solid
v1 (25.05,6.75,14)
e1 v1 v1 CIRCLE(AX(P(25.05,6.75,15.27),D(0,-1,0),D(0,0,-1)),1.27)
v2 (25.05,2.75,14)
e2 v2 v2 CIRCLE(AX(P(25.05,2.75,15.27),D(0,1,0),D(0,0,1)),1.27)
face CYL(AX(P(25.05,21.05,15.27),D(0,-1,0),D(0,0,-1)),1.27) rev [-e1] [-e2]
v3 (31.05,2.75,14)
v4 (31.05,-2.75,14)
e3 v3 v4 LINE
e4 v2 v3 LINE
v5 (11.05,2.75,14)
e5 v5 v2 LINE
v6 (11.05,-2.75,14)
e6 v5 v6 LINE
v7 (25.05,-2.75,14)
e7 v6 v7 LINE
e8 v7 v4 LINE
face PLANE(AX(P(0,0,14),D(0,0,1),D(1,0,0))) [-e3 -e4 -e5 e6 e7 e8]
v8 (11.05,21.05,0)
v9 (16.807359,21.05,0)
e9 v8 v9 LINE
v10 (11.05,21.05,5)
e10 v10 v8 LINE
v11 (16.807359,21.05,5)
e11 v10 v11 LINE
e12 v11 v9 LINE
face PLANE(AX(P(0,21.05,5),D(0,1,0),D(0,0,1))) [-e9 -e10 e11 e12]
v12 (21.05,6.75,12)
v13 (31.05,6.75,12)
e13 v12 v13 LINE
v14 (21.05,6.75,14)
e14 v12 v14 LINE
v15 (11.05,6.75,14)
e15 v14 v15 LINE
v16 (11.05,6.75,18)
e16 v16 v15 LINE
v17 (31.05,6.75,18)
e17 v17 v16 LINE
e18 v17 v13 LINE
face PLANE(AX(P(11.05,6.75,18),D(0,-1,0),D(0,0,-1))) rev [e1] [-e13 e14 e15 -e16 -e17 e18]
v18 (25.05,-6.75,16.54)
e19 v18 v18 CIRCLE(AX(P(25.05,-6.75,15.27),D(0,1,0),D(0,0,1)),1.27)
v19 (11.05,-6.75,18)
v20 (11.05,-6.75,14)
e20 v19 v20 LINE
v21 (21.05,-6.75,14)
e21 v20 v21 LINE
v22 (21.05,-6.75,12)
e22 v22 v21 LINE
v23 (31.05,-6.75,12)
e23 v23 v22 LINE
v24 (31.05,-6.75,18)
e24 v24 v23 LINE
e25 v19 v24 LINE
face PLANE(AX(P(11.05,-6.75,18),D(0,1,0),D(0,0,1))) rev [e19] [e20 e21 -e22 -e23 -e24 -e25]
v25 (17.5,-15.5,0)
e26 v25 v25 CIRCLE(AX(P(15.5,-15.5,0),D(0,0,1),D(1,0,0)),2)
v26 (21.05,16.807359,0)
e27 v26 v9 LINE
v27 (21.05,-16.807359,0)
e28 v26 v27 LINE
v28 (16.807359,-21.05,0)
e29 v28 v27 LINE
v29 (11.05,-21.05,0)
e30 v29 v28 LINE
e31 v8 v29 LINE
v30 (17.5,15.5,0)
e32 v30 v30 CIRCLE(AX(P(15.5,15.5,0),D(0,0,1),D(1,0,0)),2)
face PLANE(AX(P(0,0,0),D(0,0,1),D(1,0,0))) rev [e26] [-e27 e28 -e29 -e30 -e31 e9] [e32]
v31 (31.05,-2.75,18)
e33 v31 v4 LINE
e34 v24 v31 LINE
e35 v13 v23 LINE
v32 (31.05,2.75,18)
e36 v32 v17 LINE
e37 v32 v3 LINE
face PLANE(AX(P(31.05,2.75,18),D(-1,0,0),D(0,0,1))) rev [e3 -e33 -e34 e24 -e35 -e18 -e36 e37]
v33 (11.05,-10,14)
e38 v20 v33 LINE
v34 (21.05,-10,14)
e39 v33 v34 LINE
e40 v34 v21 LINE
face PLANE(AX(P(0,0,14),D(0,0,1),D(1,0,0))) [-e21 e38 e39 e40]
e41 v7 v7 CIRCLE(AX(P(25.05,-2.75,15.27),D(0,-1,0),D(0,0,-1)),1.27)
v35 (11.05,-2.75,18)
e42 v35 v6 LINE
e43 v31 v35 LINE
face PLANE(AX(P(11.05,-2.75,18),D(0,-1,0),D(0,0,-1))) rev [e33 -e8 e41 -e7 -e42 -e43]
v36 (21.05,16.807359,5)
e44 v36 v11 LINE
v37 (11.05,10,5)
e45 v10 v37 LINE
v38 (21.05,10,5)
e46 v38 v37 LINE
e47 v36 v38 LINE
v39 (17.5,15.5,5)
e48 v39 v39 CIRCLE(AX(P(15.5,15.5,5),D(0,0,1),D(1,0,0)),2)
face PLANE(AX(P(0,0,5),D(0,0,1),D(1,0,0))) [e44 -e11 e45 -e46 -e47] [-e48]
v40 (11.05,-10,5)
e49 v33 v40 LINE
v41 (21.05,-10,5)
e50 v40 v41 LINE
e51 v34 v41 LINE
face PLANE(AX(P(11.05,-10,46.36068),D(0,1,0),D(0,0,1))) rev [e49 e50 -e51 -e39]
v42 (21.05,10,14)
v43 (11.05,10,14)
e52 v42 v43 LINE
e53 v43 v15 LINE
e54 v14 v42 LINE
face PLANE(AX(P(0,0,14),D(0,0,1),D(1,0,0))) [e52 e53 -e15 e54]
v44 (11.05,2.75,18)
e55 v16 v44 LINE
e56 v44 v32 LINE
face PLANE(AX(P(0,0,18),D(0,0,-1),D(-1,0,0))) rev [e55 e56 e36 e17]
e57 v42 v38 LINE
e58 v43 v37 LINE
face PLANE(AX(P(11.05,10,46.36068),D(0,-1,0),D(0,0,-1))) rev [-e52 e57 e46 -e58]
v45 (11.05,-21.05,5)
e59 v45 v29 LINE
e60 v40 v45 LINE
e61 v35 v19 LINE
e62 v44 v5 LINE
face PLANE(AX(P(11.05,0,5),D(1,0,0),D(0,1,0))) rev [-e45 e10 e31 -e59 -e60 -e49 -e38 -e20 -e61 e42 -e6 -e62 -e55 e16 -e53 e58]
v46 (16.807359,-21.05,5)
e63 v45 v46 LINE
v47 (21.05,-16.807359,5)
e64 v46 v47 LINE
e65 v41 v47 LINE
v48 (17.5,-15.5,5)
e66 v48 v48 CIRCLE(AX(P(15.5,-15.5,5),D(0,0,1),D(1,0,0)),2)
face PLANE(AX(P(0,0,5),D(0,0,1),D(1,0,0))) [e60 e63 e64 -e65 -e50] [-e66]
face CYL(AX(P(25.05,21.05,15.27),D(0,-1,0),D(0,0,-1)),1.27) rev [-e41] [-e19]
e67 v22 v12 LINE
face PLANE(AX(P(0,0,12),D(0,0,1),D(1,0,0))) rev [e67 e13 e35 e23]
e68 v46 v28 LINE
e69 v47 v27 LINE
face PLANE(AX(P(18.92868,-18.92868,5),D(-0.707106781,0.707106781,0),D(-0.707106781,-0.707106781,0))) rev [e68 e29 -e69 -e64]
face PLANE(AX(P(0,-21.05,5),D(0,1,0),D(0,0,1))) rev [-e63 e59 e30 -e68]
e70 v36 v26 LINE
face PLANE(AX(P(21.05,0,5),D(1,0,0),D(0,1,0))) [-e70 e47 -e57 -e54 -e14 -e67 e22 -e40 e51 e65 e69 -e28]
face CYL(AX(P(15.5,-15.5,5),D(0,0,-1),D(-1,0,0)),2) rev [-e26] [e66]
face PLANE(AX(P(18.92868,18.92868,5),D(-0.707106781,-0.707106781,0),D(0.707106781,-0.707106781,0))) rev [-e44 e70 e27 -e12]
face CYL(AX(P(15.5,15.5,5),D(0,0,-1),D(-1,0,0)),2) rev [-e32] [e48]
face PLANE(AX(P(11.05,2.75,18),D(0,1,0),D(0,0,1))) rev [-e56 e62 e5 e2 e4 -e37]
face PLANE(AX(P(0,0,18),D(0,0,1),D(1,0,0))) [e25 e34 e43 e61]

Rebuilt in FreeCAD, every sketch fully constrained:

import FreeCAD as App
import Part
import Sketcher
from FreeCAD import Vector

doc = App.newDocument("Part")
body = doc.addObject("PartDesign::Body", "Body")

sketch1 = body.newObject("Sketcher::SketchObject", "Sketch")
sketch1.AttachmentSupport = (doc.getObject("XY_Plane"), [""])
sketch1.MapMode = "FlatFace"
sketch1.addGeometry(Part.LineSegment(Vector(16.8, 21.1, 0), Vector(11.1, 21.1, 0)), False)
sketch1.addGeometry(Part.LineSegment(Vector(11.1, 21.1, 0), Vector(11.1, -21.1, 0)), False)
sketch1.addGeometry(Part.LineSegment(Vector(11.1, -21.1, 0), Vector(16.8, -21.1, 0)), False)
sketch1.addGeometry(Part.LineSegment(Vector(16.8, -21.1, 0), Vector(21.1, -16.8, 0)), False)
sketch1.addGeometry(Part.LineSegment(Vector(21.1, -16.8, 0), Vector(21.1, 16.8, 0)), False)
sketch1.addGeometry(Part.LineSegment(Vector(21.1, 16.8, 0), Vector(16.8, 21.1, 0)), False)
sketch1.addGeometry(Part.Circle(Vector(15.5, -15.5, 0), Vector(0, 0, 1), 2), False)
sketch1.addGeometry(Part.Circle(Vector(15.5, 15.5, 0), Vector(0, 0, 1), 2), False)
sketch1.addConstraint(Sketcher.Constraint("Coincident", 0, 2, 1, 1))
sketch1.addConstraint(Sketcher.Constraint("Coincident", 1, 2, 2, 1))
sketch1.addConstraint(Sketcher.Constraint("Coincident", 2, 2, 3, 1))
sketch1.addConstraint(Sketcher.Constraint("Coincident", 3, 2, 4, 1))
sketch1.addConstraint(Sketcher.Constraint("Coincident", 4, 2, 5, 1))
sketch1.addConstraint(Sketcher.Constraint("Coincident", 5, 2, 0, 1))
sketch1.addConstraint(Sketcher.Constraint("Horizontal", 0))
sketch1.addConstraint(Sketcher.Constraint("Vertical", 1))
sketch1.addConstraint(Sketcher.Constraint("Horizontal", 2))
sketch1.addConstraint(Sketcher.Constraint("Vertical", 4))
sketch1.addConstraint(Sketcher.Constraint("Equal", 6, 7))
sketch1.addConstraint(Sketcher.Constraint("Symmetric", 6, 3, 7, 3, -1))
sketch1.addConstraint(Sketcher.Constraint("Symmetric", 2, 2, 5, 2, -1))
sketch1.addConstraint(Sketcher.Constraint("Perpendicular", 3, 5))
sketch1.addConstraint(Sketcher.Constraint("Equal", 3, 5))
sketch1.addConstraint(Sketcher.Constraint("Diameter", 6, 4.0))
sketch1.addConstraint(Sketcher.Constraint("Distance", 3, 6.0))
sketch1.addConstraint(Sketcher.Constraint("DistanceY", 1, 2, 1, 1, 42.1))
sketch1.addConstraint(Sketcher.Constraint("DistanceY", 6, 3, 7, 3, 31.0))
sketch1.addConstraint(Sketcher.Constraint("DistanceX", 1, 2, 3, 2, 10.0))
sketch1.addConstraint(Sketcher.Constraint("DistanceX", -1, 1, 6, 3, 15.5))
sketch1.addConstraint(Sketcher.Constraint("DistanceX", -1, 1, 0, 2, 11.05))
pad1 = body.newObject("PartDesign::Pad", "Pad")
pad1.Profile = sketch1
pad1.Length = 5

sketch2 = body.newObject("Sketcher::SketchObject", "Sketch001")
sketch2.AttachmentSupport = (doc.getObject("XY_Plane"), [""])
sketch2.MapMode = "FlatFace"
sketch2.AttachmentOffset = App.Placement(Vector(0, 0, 5), App.Rotation())
sketch2.addGeometry(Part.LineSegment(Vector(11, 10, 0), Vector(11, -10, 0)), False)
sketch2.addGeometry(Part.LineSegment(Vector(11, -10, 0), Vector(21, -10, 0)), False)
sketch2.addGeometry(Part.LineSegment(Vector(21, -10, 0), Vector(21, 10, 0)), False)
sketch2.addGeometry(Part.LineSegment(Vector(21, 10, 0), Vector(11, 10, 0)), False)
sketch2.addConstraint(Sketcher.Constraint("Coincident", 0, 2, 1, 1))
sketch2.addConstraint(Sketcher.Constraint("Coincident", 1, 2, 2, 1))
sketch2.addConstraint(Sketcher.Constraint("Coincident", 2, 2, 3, 1))
sketch2.addConstraint(Sketcher.Constraint("Coincident", 3, 2, 0, 1))
sketch2.addConstraint(Sketcher.Constraint("Vertical", 0))
sketch2.addConstraint(Sketcher.Constraint("Horizontal", 1))
sketch2.addConstraint(Sketcher.Constraint("Vertical", 2))
sketch2.addConstraint(Sketcher.Constraint("Horizontal", 3))
sketch2.addConstraint(Sketcher.Constraint("DistanceX", 1, 1, 1, 2, 10.0))
sketch2.addConstraint(Sketcher.Constraint("DistanceY", 0, 2, 0, 1, 20.0))
sketch2.addConstraint(Sketcher.Constraint("DistanceY", 0, 2, -1, 1, 10.0))
sketch2.addConstraint(Sketcher.Constraint("DistanceX", -1, 1, 0, 2, 11.05))
pad2 = body.newObject("PartDesign::Pad", "Pad001")
pad2.Profile = sketch2
pad2.Length = 9

sketch3 = body.newObject("Sketcher::SketchObject", "Sketch002")
sketch3.AttachmentSupport = (doc.getObject("XY_Plane"), [""])
sketch3.MapMode = "FlatFace"
sketch3.AttachmentOffset = App.Placement(Vector(0, 0, 14), App.Rotation())
sketch3.addGeometry(Part.LineSegment(Vector(11.1, 6.8, 0), Vector(11.1, 2.8, 0)), False)
sketch3.addGeometry(Part.LineSegment(Vector(11.1, 2.8, 0), Vector(31.1, 2.8, 0)), False)
sketch3.addGeometry(Part.LineSegment(Vector(31.1, 2.8, 0), Vector(31.1, 6.8, 0)), False)
sketch3.addGeometry(Part.LineSegment(Vector(31.1, 6.8, 0), Vector(11.1, 6.8, 0)), False)
sketch3.addGeometry(Part.LineSegment(Vector(11.1, -2.8, 0), Vector(11.1, -6.8, 0)), False)
sketch3.addGeometry(Part.LineSegment(Vector(11.1, -6.8, 0), Vector(31.1, -6.8, 0)), False)
sketch3.addGeometry(Part.LineSegment(Vector(31.1, -6.8, 0), Vector(31.1, -2.8, 0)), False)
sketch3.addGeometry(Part.LineSegment(Vector(31.1, -2.8, 0), Vector(11.1, -2.8, 0)), False)
sketch3.addConstraint(Sketcher.Constraint("Coincident", 0, 2, 1, 1))
sketch3.addConstraint(Sketcher.Constraint("Coincident", 1, 2, 2, 1))
sketch3.addConstraint(Sketcher.Constraint("Coincident", 2, 2, 3, 1))
sketch3.addConstraint(Sketcher.Constraint("Coincident", 3, 2, 0, 1))
sketch3.addConstraint(Sketcher.Constraint("Coincident", 4, 2, 5, 1))
sketch3.addConstraint(Sketcher.Constraint("Coincident", 5, 2, 6, 1))
sketch3.addConstraint(Sketcher.Constraint("Coincident", 6, 2, 7, 1))
sketch3.addConstraint(Sketcher.Constraint("Coincident", 7, 2, 4, 1))
sketch3.addConstraint(Sketcher.Constraint("Vertical", 0))
sketch3.addConstraint(Sketcher.Constraint("Horizontal", 1))
sketch3.addConstraint(Sketcher.Constraint("Vertical", 2))
sketch3.addConstraint(Sketcher.Constraint("Horizontal", 3))
sketch3.addConstraint(Sketcher.Constraint("Vertical", 4))
sketch3.addConstraint(Sketcher.Constraint("Horizontal", 5))
sketch3.addConstraint(Sketcher.Constraint("Vertical", 6))
sketch3.addConstraint(Sketcher.Constraint("Horizontal", 7))
sketch3.addConstraint(Sketcher.Constraint("Symmetric", 3, 2, 4, 2, -1))
sketch3.addConstraint(Sketcher.Constraint("Symmetric", 1, 2, 6, 2, -1))
sketch3.addConstraint(Sketcher.Constraint("DistanceX", 1, 1, 1, 2, 20.0))
sketch3.addConstraint(Sketcher.Constraint("DistanceY", 0, 2, 0, 1, 4.0))
sketch3.addConstraint(Sketcher.Constraint("DistanceY", 4, 2, 0, 2, 9.5))
sketch3.addConstraint(Sketcher.Constraint("DistanceX", -1, 1, 0, 2, 11.05))
pad3 = body.newObject("PartDesign::Pad", "Pad002")
pad3.Profile = sketch3
pad3.Length = 4

sketch4 = body.newObject("Sketcher::SketchObject", "Sketch003")
sketch4.AttachmentSupport = (doc.getObject("XY_Plane"), [""])
sketch4.MapMode = "FlatFace"
sketch4.AttachmentOffset = App.Placement(Vector(0, 0, 14), App.Rotation())
sketch4.addGeometry(Part.LineSegment(Vector(31, 7, 0), Vector(31, -7, 0)), False)
sketch4.addGeometry(Part.LineSegment(Vector(31, -7, 0), Vector(21, -7, 0)), False)
sketch4.addGeometry(Part.LineSegment(Vector(21, -7, 0), Vector(21, 7, 0)), False)
sketch4.addGeometry(Part.LineSegment(Vector(21, 7, 0), Vector(31, 7, 0)), False)
sketch4.addConstraint(Sketcher.Constraint("Coincident", 0, 2, 1, 1))
sketch4.addConstraint(Sketcher.Constraint("Coincident", 1, 2, 2, 1))
sketch4.addConstraint(Sketcher.Constraint("Coincident", 2, 2, 3, 1))
sketch4.addConstraint(Sketcher.Constraint("Coincident", 3, 2, 0, 1))
sketch4.addConstraint(Sketcher.Constraint("Vertical", 0))
sketch4.addConstraint(Sketcher.Constraint("Horizontal", 1))
sketch4.addConstraint(Sketcher.Constraint("Vertical", 2))
sketch4.addConstraint(Sketcher.Constraint("Horizontal", 3))
sketch4.addConstraint(Sketcher.Constraint("DistanceX", 1, 2, 1, 1, 10.0))
sketch4.addConstraint(Sketcher.Constraint("DistanceY", 0, 2, 0, 1, 13.5))
sketch4.addConstraint(Sketcher.Constraint("DistanceX", -1, 1, 0, 2, 31.05))
sketch4.addConstraint(Sketcher.Constraint("DistanceY", 0, 2, -1, 1, 6.75))
pad4 = body.newObject("PartDesign::Pad", "Pad003")
pad4.Profile = sketch4
pad4.Length = 2
pad4.Reversed = True

sketch5 = body.newObject("Sketcher::SketchObject", "Sketch004")
sketch5.AttachmentSupport = (doc.getObject("XZ_Plane"), [""])
sketch5.MapMode = "FlatFace"
sketch5.AttachmentOffset = App.Placement(Vector(0, 0, 6.75), App.Rotation())
sketch5.addGeometry(Part.Circle(Vector(25.1, 15.3, 0), Vector(0, 0, 1), 1.3), False)
sketch5.addConstraint(Sketcher.Constraint("Diameter", 0, 2.54))
sketch5.addConstraint(Sketcher.Constraint("DistanceX", -1, 1, 0, 3, 25.05))
sketch5.addConstraint(Sketcher.Constraint("DistanceY", -1, 1, 0, 3, 15.27))
pocket1 = body.newObject("PartDesign::Pocket", "Pocket")
pocket1.Profile = sketch5
pocket1.Type = "ThroughAll"
pocket1.Midplane = True

doc.recompute()
